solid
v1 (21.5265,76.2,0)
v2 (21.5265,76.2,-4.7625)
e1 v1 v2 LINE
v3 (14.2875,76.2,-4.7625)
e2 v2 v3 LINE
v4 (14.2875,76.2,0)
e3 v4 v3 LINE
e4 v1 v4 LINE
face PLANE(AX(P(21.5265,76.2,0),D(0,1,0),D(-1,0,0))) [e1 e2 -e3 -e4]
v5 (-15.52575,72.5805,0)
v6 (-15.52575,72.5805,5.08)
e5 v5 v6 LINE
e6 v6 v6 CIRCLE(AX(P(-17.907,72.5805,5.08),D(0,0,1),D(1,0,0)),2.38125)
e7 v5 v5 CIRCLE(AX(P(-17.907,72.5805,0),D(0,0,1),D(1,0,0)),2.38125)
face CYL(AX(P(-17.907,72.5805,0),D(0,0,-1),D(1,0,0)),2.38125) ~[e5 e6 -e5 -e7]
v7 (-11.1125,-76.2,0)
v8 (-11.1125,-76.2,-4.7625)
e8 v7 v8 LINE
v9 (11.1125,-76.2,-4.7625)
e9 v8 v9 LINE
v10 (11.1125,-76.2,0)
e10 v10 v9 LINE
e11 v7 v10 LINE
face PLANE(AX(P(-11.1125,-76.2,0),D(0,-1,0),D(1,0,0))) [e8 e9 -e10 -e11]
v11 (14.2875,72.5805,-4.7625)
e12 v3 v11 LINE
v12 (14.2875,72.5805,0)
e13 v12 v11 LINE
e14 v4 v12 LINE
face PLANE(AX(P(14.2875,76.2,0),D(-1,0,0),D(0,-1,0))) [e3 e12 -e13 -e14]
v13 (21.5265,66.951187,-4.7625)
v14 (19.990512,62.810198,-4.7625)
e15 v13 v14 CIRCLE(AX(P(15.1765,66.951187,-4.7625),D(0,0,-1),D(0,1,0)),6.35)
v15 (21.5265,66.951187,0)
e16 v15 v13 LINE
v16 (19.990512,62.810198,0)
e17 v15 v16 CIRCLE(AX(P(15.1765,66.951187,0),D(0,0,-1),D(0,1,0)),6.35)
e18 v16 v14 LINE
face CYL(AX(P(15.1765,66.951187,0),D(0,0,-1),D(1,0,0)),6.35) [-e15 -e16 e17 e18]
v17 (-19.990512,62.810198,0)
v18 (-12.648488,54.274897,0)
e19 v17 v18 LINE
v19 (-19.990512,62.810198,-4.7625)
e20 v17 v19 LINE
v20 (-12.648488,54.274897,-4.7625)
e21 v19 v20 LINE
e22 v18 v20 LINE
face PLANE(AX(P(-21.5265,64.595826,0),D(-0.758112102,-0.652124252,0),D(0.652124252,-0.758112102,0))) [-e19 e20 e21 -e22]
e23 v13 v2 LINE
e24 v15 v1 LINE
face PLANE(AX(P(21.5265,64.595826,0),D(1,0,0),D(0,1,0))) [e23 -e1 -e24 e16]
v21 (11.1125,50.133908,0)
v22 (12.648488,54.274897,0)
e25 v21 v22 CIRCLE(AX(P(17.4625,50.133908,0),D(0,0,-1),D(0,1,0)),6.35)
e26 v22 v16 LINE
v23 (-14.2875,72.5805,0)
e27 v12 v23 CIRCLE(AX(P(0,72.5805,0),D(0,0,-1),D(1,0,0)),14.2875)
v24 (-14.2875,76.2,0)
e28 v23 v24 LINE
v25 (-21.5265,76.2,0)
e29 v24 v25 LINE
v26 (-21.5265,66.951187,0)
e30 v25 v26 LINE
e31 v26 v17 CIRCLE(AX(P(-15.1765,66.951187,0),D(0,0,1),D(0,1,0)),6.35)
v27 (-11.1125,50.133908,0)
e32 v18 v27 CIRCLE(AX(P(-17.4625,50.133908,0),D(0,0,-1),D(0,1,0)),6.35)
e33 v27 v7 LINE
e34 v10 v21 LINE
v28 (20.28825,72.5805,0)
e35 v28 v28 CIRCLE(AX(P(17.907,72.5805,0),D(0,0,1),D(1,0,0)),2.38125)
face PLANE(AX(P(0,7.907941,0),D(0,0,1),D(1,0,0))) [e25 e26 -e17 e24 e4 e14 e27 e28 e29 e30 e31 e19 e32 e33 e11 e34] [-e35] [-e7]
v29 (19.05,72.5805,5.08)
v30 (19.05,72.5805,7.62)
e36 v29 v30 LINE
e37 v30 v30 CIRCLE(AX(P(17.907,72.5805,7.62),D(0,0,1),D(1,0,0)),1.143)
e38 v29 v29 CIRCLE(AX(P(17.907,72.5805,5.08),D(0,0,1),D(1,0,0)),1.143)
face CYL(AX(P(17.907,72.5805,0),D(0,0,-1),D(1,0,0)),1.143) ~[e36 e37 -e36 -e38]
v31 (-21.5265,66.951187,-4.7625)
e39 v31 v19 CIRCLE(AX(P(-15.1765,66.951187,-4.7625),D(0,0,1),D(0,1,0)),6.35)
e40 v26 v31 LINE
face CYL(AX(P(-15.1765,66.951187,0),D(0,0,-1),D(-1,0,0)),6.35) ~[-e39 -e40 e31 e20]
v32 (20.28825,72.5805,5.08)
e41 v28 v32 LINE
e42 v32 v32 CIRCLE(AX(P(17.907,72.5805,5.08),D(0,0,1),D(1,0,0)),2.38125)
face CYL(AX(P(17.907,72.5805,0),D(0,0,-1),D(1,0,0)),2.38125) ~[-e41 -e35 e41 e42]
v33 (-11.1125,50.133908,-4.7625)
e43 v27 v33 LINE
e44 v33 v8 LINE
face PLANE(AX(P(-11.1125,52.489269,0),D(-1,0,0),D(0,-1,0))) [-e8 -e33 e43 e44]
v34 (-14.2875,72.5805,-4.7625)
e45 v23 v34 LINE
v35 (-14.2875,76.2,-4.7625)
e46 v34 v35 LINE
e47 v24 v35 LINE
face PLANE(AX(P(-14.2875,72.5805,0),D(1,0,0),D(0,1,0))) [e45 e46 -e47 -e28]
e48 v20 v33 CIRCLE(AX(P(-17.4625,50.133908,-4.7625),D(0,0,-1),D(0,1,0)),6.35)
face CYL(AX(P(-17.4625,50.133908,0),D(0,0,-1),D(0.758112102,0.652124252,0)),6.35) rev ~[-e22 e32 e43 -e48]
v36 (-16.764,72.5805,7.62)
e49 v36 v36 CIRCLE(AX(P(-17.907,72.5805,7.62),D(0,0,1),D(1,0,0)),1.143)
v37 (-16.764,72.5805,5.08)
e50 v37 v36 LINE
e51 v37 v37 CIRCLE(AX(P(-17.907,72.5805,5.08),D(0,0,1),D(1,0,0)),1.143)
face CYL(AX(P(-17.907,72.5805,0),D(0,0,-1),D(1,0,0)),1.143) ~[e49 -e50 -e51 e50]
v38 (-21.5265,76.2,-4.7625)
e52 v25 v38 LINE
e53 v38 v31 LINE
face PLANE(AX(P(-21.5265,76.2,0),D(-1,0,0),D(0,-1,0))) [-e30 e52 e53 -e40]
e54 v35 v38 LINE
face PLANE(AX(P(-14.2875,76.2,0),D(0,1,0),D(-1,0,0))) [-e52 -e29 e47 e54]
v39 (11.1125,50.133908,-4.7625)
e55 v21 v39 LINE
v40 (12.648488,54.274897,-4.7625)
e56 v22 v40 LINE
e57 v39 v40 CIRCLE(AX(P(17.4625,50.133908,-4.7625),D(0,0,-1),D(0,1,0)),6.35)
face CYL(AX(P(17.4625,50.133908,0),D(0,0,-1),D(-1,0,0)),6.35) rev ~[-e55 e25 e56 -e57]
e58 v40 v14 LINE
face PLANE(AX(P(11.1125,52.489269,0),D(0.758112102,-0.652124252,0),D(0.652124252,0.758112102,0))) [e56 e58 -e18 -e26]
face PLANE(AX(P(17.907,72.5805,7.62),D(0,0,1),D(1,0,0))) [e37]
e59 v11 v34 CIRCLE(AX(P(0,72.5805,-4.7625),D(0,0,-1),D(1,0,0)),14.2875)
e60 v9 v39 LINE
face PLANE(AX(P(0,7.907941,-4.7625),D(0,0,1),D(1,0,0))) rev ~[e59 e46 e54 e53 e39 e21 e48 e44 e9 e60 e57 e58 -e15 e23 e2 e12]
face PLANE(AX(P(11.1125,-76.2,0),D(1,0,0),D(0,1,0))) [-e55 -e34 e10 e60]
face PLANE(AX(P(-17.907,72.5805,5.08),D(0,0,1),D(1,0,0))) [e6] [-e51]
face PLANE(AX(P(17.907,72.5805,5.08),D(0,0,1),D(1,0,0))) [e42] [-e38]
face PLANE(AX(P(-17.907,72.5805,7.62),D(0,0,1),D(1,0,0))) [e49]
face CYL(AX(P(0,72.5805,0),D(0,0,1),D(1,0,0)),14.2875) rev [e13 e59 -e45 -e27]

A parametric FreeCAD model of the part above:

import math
import FreeCAD as App
import Part
import Sketcher
Q = App.Units.Quantity


def edges_at(feature, points):
    """Names of the edges that pass closest to the given points."""
    edges = feature.Shape.Edges
    near = lambda p: min(range(len(edges)), key=lambda i: edges[i].distToShape(Part.Vertex(*p))[0])
    return sorted({f"Edge{near(p) + 1}" for p in points})

doc = App.newDocument("Part")
body = doc.addObject("PartDesign::Body", "Body")

sketch1 = doc.addObject("Sketcher::SketchObject", "Sketch")
body.addObject(sketch1)
sketch1.AttachmentSupport = (doc.XY_Plane, [""])
sketch1.MapMode = "FlatFace"
sketch1.addGeometry([
    Part.LineSegment(App.Vector(21.5, 64.6, 0), App.Vector(21.5, 76.2, 0)),
    Part.LineSegment(App.Vector(21.5, 76.2, 0), App.Vector(14.3, 76.2, 0)),
    Part.LineSegment(App.Vector(14.3, 76.2, 0), App.Vector(14.3, 72.6, 0)),
    Part.ArcOfCircle(Part.Circle(App.Vector(0, 72.6, 0), App.Vector(0, 0, 1), 14.3), math.radians(180), math.radians(360)),
    Part.LineSegment(App.Vector(-14.3, 72.6, 0), App.Vector(-14.3, 76.2, 0)),
    Part.LineSegment(App.Vector(-14.3, 76.2, 0), App.Vector(-21.5, 76.2, 0)),
    Part.LineSegment(App.Vector(-21.5, 76.2, 0), App.Vector(-21.5, 64.6, 0)),
    Part.LineSegment(App.Vector(-21.5, 64.6, 0), App.Vector(-11.1, 52.5, 0)),
    Part.LineSegment(App.Vector(-11.1, 52.5, 0), App.Vector(-11.1, -76.2, 0)),
    Part.LineSegment(App.Vector(-11.1, -76.2, 0), App.Vector(11.1, -76.2, 0)),
    Part.LineSegment(App.Vector(11.1, -76.2, 0), App.Vector(11.1, 52.5, 0)),
    Part.LineSegment(App.Vector(11.1, 52.5, 0), App.Vector(21.5, 64.6, 0)),
], False)
sketch1.addConstraint([
    Sketcher.Constraint("Coincident", 0, 2, 1, 1),
    Sketcher.Constraint("Coincident", 1, 2, 2, 1),
    Sketcher.Constraint("Tangent", 2, 2, 3, 2),
    Sketcher.Constraint("Tangent", 3, 1, 4, 1),
    Sketcher.Constraint("Coincident", 4, 2, 5, 1),
    Sketcher.Constraint("Coincident", 5, 2, 6, 1),
    Sketcher.Constraint("Coincident", 6, 2, 7, 1),
    Sketcher.Constraint("Coincident", 7, 2, 8, 1),
    Sketcher.Constraint("Coincident", 8, 2, 9, 1),
    Sketcher.Constraint("Coincident", 9, 2, 10, 1),
    Sketcher.Constraint("Coincident", 10, 2, 11, 1),
    Sketcher.Constraint("Coincident", 11, 2, 0, 1),
    Sketcher.Constraint("Vertical", 0),
    Sketcher.Constraint("Horizontal", 1),
    Sketcher.Constraint("Vertical", 2),
    Sketcher.Constraint("Vertical", 4),
    Sketcher.Constraint("Horizontal", 5),
    Sketcher.Constraint("Vertical", 6),
    Sketcher.Constraint("Vertical", 8),
    Sketcher.Constraint("Horizontal", 9),
    Sketcher.Constraint("Vertical", 10),
    Sketcher.Constraint("Symmetric", 1, 2, 4, 2, -2),
    Sketcher.Constraint("Symmetric", 7, 2, 10, 2, -2),
    Sketcher.Constraint("Symmetric", 6, 2, 11, 2, -2),
    Sketcher.Constraint("DistanceY", -1, 1, 0, 2, Q("3 in")),
    Sketcher.Constraint("DistanceY", 8, 2, -1, 1, Q("3 in")),
    Sketcher.Constraint("Radius", 3, Q("0.5625 in")),
    Sketcher.Constraint("DistanceX", 8, 2, 2, 2, Q("1 in")),
    Sketcher.Constraint("DistanceX", 1, 2, 1, 1, Q("0.285 in")),
    Sketcher.Constraint("DistanceY", 2, 2, 2, 1, Q("0.1425 in")),
    Sketcher.Constraint("DistanceY", 8, 2, 8, 1, 128.689269),
    Sketcher.Constraint("Distance", 7, 15.969349),
])
pad1 = doc.addObject("PartDesign::Pad", "Pad")
body.addObject(pad1)
pad1.Profile = sketch1
pad1.Length = Q("0.1875 in")
pad1.Reversed = True
doc.recompute()

fillet = doc.addObject("PartDesign::Fillet", "Fillet")
body.addObject(fillet)
fillet.Base = (pad1, edges_at(pad1, [
    (21.526, 64.596, -2.381),
    (11.113, 52.489, -2.381),
    (-21.526, 64.596, -2.381),
    (-11.113, 52.489, -2.381),
]))
fillet.Radius = Q("0.25 in")

sketch2 = doc.addObject("Sketcher::SketchObject", "Sketch001")
body.addObject(sketch2)
sketch2.AttachmentSupport = (doc.XY_Plane, [""])
sketch2.MapMode = "FlatFace"
sketch2.addGeometry([
    Part.Circle(App.Vector(17.9, 72.6, 0), App.Vector(0, 0, 1), 1.1),
    Part.Circle(App.Vector(-17.9, 72.6, 0), App.Vector(0, 0, 1), 1.1),
], False)
sketch2.addConstraint([
    Sketcher.Constraint("Equal", 0, 1),
    Sketcher.Constraint("Symmetric", 0, 3, 1, 3, -2),
    Sketcher.Constraint("Diameter", 0, Q("0.09 in")),
    Sketcher.Constraint("DistanceX", 1, 3, 0, 3, Q("1.41 in")),
    Sketcher.Constraint("DistanceY", -1, 1, 0, 3, Q("2.8575 in")),
])
pad2 = doc.addObject("PartDesign::Pad", "Pad001")
body.addObject(pad2)
pad2.Profile = sketch2
pad2.Length = Q("0.3 in")

sketch3 = doc.addObject("Sketcher::SketchObject", "Sketch002")
body.addObject(sketch3)
sketch3.AttachmentSupport = (doc.XY_Plane, [""])
sketch3.MapMode = "FlatFace"
sketch3.addGeometry([
    Part.Circle(App.Vector(-17.9, 72.6, 0), App.Vector(0, 0, 1), 2.4),
    Part.Circle(App.Vector(-17.9, 72.6, 0), App.Vector(0, 0, 1), 1.1),
    Part.Circle(App.Vector(17.9, 72.6, 0), App.Vector(0, 0, 1), 2.4),
    Part.Circle(App.Vector(17.9, 72.6, 0), App.Vector(0, 0, 1), 1.1),
], False)
sketch3.addConstraint([
    Sketcher.Constraint("Coincident", 1, 3, 0, 3),
    Sketcher.Constraint("Coincident", 3, 3, 2, 3),
    Sketcher.Constraint("Equal", 0, 2),
    Sketcher.Constraint("Equal", 1, 3),
    Sketcher.Constraint("Symmetric", 0, 3, 2, 3, -2),
    Sketcher.Constraint("Diameter", 1, Q("0.09 in")),
    Sketcher.Constraint("Diameter", 0, Q("0.1875 in")),
    Sketcher.Constraint("DistanceX", 0, 3, 2, 3, Q("1.41 in")),
    Sketcher.Constraint("DistanceY", -1, 1, 0, 3, Q("2.8575 in")),
])
pad3 = doc.addObject("PartDesign::Pad", "Pad002")
body.addObject(pad3)
pad3.Profile = sketch3
pad3.Length = Q("0.2 in")

doc.recompute()
